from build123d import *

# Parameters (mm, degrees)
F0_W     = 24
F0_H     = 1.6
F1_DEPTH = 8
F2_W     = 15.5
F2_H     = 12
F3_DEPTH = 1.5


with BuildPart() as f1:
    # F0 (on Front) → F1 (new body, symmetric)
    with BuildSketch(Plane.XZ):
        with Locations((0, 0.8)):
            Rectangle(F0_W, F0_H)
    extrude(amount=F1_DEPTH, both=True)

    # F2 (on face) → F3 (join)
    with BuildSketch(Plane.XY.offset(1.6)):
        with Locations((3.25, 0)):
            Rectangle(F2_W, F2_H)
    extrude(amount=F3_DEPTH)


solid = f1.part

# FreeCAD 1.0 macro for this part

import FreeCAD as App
import Part
import Sketcher

V = App.Vector
Q = App.Units.Quantity

doc = App.newDocument("Part")
body = doc.addObject("PartDesign::Body", "Body")

# Sketch on XZ plane
sketch1 = body.newObject("Sketcher::SketchObject", "Sketch")
sketch1.AttachmentSupport = (doc.getObject("XZ_Plane"), [""])
sketch1.MapMode = "FlatFace"
sketch1.addGeometry([
    Part.LineSegment(V(-12, 1.6, 0), V(-12, 0, 0)),
    Part.LineSegment(V(-12, 0, 0), V(12, 0, 0)),
    Part.LineSegment(V(12, 0, 0), V(12, 1.6, 0)),
    Part.LineSegment(V(12, 1.6, 0), V(-12, 1.6, 0)),
], False)
sketch1.addConstraint([
    Sketcher.Constraint("Coincident", 0, 2, 1, 1),
    Sketcher.Constraint("Coincident", 1, 2, 2, 1),
    Sketcher.Constraint("Coincident", 2, 2, 3, 1),
    Sketcher.Constraint("Coincident", 3, 2, 0, 1),
    Sketcher.Constraint("Vertical", 0),
    Sketcher.Constraint("Horizontal", 1),
    Sketcher.Constraint("Vertical", 2),
    Sketcher.Constraint("Horizontal", 3),
    Sketcher.Constraint("Symmetric", 0, 2, 1, 2, -1, 1),
    Sketcher.Constraint("DistanceX", 1, 1, 1, 2, Q("24 mm")),
    Sketcher.Constraint("DistanceY", 0, 2, 0, 1, Q("1.6 mm")),
])
pad1 = body.newObject("PartDesign::Pad", "Pad")
pad1.Profile = sketch1
pad1.Length = 16
pad1.Midplane = True

# Sketch on XY plane
sketch2 = body.newObject("Sketcher::SketchObject", "Sketch001")
sketch2.AttachmentSupport = (doc.getObject("XY_Plane"), [""])
sketch2.MapMode = "FlatFace"
sketch2.AttachmentOffset = App.Placement(V(0, 0, 1.6), App.Rotation())
sketch2.addGeometry([
    Part.LineSegment(V(-4.5, 6, 0), V(-4.5, -6, 0)),
    Part.LineSegment(V(-4.5, -6, 0), V(11, -6, 0)),
    Part.LineSegment(V(11, -6, 0), V(11, 6, 0)),
    Part.LineSegment(V(11, 6, 0), V(-4.5, 6, 0)),
], False)
sketch2.addConstraint([
    Sketcher.Constraint("Coincident", 0, 2, 1, 1),
    Sketcher.Constraint("Coincident", 1, 2, 2, 1),
    Sketcher.Constraint("Coincident", 2, 2, 3, 1),
    Sketcher.Constraint("Coincident", 3, 2, 0, 1),
    Sketcher.Constraint("Vertical", 0),
    Sketcher.Constraint("Horizontal", 1),
    Sketcher.Constraint("Vertical", 2),
    Sketcher.Constraint("Horizontal", 3),
    Sketcher.Constraint("DistanceY", 0, 2, 0, 1, Q("12 mm")),
    Sketcher.Constraint("DistanceX", 1, 1, 1, 2, Q("15.5 mm")),
    Sketcher.Constraint("DistanceY", 0, 2, -1, 1, Q("6 mm")),
    Sketcher.Constraint("DistanceX", -1, 1, 1, 2, Q("11 mm")),
])
pad2 = body.newObject("PartDesign::Pad", "Pad001")
pad2.Profile = sketch2
pad2.Length = 1.5

doc.recompute()
